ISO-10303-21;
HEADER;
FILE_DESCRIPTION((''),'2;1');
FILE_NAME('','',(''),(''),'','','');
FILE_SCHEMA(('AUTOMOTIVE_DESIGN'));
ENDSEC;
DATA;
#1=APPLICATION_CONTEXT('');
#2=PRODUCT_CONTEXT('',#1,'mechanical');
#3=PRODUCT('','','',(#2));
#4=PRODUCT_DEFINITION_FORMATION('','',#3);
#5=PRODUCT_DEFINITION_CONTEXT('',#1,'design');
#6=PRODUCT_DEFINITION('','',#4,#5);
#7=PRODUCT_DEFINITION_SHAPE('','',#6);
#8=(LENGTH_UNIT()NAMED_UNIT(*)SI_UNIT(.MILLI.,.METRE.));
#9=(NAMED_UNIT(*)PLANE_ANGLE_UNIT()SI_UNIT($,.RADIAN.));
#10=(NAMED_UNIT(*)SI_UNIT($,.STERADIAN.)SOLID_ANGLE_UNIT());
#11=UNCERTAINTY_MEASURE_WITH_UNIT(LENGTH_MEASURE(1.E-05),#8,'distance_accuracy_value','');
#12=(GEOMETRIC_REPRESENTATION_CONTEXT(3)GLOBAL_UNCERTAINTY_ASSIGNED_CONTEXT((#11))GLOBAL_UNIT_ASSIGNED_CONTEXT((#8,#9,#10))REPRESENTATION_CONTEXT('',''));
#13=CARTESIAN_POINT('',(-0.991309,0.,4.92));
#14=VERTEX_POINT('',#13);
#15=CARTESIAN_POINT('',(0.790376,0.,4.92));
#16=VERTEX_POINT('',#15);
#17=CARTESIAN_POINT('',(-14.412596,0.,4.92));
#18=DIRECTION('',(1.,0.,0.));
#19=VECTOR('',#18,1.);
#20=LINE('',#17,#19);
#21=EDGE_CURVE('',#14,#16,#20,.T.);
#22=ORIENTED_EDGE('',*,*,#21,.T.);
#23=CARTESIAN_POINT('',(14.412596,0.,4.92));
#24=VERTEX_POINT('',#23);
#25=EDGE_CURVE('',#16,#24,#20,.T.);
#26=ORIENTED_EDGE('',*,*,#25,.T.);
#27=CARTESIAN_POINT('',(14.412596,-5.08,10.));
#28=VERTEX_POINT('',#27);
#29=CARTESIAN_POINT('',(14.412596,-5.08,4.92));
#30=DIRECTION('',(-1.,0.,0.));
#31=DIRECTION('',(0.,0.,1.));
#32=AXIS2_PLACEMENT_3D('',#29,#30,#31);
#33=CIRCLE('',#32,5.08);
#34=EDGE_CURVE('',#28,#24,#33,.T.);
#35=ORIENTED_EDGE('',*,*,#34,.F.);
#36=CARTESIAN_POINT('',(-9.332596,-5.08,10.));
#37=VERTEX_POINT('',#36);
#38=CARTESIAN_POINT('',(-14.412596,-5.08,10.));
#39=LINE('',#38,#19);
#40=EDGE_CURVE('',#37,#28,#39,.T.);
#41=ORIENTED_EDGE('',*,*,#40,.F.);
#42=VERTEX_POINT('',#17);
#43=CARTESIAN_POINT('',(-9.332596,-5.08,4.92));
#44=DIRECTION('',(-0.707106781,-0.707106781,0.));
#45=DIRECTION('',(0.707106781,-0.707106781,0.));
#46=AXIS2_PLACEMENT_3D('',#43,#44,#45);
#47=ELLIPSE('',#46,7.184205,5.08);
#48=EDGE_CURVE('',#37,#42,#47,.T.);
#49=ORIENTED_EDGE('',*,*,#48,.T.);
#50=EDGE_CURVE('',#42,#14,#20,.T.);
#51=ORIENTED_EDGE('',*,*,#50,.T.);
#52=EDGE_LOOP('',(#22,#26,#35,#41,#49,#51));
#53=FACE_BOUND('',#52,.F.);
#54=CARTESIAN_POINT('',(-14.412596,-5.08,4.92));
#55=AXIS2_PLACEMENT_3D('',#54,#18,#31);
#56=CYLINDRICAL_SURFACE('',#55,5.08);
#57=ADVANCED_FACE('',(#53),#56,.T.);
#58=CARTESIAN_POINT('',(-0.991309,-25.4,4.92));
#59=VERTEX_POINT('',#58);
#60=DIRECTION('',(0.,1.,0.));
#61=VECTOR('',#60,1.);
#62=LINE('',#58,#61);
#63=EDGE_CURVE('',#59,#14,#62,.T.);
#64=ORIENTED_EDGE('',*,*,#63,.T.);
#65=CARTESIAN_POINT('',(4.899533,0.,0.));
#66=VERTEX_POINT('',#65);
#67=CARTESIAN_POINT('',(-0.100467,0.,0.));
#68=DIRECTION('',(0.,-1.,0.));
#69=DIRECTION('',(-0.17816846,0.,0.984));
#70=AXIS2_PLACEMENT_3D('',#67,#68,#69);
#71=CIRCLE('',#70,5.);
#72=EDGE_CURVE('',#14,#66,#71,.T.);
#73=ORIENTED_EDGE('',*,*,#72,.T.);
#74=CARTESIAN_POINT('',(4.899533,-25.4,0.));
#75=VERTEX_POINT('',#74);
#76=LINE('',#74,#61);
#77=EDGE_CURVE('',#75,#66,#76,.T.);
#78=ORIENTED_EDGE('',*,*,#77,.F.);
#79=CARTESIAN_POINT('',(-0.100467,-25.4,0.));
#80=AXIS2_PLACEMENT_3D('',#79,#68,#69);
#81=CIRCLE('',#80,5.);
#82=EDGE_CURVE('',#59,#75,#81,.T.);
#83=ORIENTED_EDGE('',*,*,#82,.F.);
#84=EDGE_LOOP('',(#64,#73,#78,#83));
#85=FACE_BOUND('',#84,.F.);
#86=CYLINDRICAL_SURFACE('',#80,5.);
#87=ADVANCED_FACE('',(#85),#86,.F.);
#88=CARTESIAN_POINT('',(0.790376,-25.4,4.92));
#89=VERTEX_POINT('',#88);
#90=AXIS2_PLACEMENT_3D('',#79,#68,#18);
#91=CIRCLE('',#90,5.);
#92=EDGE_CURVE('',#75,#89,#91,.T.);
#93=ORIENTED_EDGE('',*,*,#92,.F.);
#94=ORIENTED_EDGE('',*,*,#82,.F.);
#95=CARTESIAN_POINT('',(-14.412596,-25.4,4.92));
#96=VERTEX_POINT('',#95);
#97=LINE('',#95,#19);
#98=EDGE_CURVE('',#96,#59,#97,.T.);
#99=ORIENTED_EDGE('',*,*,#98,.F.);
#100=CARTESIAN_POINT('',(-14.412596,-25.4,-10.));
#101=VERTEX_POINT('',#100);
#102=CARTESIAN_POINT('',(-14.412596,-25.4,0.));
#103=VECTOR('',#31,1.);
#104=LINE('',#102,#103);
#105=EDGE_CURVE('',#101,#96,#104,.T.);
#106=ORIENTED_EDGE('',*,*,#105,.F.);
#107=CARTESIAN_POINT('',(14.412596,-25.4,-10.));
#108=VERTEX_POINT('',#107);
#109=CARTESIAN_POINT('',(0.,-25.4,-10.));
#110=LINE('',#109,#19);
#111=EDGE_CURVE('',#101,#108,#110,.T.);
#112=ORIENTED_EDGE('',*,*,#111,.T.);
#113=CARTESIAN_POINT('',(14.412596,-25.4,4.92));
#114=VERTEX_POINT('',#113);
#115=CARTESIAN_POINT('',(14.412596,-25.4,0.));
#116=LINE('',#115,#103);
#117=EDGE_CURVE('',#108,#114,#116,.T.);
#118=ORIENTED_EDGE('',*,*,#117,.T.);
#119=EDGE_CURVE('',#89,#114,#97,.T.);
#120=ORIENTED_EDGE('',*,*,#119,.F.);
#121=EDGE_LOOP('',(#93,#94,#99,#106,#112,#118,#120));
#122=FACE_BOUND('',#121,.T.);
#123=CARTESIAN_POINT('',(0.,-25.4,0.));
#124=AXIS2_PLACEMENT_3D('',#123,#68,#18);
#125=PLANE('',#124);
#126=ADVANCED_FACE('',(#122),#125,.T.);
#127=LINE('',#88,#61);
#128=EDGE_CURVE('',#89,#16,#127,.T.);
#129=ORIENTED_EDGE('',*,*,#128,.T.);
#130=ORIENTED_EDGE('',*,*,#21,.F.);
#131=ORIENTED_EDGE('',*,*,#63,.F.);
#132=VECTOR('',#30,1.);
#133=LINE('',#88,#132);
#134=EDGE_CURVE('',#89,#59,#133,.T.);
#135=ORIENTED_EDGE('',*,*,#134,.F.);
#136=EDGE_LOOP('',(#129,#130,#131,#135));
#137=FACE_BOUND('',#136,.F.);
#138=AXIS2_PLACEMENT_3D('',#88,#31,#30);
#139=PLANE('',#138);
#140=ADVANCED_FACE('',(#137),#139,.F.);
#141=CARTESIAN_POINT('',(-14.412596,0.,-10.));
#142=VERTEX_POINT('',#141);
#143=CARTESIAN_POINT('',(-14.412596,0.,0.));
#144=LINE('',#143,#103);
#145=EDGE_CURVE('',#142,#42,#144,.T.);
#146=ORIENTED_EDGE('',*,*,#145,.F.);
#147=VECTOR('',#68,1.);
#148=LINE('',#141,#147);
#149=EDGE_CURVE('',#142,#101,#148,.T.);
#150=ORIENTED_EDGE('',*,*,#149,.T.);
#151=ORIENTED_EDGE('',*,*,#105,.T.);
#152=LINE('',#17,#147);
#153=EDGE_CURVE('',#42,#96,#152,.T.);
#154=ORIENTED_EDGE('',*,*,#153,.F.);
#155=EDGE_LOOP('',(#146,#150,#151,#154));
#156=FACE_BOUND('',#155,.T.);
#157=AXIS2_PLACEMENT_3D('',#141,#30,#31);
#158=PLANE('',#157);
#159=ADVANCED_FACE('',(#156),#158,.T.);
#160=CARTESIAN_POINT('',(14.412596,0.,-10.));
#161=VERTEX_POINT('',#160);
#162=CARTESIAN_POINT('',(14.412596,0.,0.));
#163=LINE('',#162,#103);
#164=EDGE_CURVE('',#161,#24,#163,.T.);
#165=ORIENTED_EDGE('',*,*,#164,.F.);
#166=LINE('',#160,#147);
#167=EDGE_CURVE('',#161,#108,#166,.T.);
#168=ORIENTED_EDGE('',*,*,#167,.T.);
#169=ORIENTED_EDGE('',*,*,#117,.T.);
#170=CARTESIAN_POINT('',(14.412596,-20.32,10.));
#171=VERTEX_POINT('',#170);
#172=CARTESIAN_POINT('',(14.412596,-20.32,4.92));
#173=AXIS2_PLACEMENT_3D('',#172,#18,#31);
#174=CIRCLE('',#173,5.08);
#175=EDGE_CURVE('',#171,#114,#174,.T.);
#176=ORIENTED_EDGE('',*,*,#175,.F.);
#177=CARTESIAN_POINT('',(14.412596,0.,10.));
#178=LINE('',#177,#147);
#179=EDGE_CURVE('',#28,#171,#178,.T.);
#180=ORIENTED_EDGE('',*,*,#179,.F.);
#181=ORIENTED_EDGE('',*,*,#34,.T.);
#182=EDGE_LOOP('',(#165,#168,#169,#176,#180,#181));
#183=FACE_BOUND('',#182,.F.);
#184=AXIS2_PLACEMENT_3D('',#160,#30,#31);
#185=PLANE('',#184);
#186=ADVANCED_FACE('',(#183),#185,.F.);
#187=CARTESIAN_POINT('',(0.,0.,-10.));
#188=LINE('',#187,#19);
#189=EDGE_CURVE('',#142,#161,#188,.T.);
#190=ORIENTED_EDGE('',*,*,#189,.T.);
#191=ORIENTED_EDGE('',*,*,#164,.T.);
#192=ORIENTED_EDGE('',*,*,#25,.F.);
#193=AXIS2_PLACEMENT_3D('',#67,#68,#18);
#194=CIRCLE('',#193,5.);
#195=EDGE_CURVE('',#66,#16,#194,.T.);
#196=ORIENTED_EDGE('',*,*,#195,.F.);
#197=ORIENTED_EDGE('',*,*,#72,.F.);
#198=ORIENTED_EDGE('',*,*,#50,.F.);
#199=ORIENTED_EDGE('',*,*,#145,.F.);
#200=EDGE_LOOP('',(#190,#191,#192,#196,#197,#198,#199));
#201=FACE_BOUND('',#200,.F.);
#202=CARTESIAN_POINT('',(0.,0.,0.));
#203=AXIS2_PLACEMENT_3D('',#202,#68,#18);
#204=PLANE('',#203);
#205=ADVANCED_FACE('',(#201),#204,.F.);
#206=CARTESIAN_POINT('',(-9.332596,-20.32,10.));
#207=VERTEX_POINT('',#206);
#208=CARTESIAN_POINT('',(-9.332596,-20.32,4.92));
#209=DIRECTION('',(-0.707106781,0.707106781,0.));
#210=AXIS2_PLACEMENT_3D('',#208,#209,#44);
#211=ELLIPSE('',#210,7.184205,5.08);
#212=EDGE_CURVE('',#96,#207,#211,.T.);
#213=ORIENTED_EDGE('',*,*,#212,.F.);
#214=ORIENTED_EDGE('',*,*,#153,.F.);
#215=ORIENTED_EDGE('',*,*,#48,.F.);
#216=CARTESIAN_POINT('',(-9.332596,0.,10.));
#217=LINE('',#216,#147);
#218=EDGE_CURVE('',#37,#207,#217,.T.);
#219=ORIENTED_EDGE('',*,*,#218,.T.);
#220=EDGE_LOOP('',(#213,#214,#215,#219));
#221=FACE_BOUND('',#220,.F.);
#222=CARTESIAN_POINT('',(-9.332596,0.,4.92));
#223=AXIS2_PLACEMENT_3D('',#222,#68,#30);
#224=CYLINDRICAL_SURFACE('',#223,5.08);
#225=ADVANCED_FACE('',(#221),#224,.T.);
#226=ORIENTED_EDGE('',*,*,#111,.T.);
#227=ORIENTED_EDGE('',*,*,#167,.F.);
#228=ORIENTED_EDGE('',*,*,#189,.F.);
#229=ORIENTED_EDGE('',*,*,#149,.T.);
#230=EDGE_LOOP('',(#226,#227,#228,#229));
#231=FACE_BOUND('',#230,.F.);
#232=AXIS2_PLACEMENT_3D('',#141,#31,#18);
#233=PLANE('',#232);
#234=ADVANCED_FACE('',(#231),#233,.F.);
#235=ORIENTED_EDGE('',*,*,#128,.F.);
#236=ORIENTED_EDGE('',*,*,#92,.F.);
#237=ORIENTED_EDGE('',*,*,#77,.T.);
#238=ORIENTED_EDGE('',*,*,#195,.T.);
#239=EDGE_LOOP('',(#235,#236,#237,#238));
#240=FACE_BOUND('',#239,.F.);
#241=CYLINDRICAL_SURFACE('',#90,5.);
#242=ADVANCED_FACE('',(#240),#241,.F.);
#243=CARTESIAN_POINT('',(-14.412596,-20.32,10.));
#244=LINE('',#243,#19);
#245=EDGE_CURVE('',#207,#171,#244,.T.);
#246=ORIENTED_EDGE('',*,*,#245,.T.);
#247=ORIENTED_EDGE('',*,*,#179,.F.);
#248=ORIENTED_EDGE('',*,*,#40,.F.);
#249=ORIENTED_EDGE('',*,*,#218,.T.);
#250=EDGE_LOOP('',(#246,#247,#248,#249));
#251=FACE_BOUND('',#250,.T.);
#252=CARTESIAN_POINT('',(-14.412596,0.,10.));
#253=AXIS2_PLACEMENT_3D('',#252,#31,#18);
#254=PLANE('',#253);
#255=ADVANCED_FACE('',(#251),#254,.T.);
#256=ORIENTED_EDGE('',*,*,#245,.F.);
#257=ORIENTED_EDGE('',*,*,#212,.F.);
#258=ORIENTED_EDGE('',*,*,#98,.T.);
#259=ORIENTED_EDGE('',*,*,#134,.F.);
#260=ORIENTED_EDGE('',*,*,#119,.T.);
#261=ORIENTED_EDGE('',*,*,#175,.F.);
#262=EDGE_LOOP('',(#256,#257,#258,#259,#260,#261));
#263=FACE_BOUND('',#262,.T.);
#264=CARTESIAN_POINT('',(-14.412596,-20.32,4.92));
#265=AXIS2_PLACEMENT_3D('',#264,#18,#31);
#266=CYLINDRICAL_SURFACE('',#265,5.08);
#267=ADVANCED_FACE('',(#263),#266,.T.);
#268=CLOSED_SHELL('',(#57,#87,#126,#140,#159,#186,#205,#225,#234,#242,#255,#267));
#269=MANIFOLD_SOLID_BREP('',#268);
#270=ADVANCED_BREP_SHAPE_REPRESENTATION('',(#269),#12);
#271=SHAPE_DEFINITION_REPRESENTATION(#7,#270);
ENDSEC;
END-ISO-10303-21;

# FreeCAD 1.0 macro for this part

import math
import FreeCAD as App
import Part
import Sketcher
Q = App.Units.Quantity


def edges_at(feature, points):
    """Names of the edges that pass closest to the given points."""
    edges = feature.Shape.Edges
    near = lambda p: min(range(len(edges)), key=lambda i: edges[i].distToShape(Part.Vertex(*p))[0])
    return sorted({f"Edge{near(p) + 1}" for p in points})


def add_polygon(sketch, points):
    """Adds a closed chain of lines whose ends are joined by coincident constraints."""
    first, n = sketch.GeometryCount, len(points)
    for a, b in zip(points, points[1:] + points[:1]):
        sketch.addGeometry(Part.LineSegment(App.Vector(*a, 0), App.Vector(*b, 0)), False)
    for i in range(n):
        sketch.addConstraint(Sketcher.Constraint("Coincident", first + i, 2, first + (i + 1) % n, 1))

doc = App.newDocument("Part")
params = doc.addObject("Spreadsheet::Sheet", "Params")
for row, (alias, value) in enumerate([
    ("sketch1_height", "20 mm"),
    ("pad1_length", "25.4 mm"),
    ("fillet_radius", "5.08 mm"),
    ("sketch2_radius", "5 mm"),
], start=1):
    params.set(f"A{row}", alias)
    params.set(f"B{row}", "=" + value)
    params.setAlias(f"B{row}", alias)

body = doc.addObject("PartDesign::Body", "Body")

sketch1 = body.newObject("Sketcher::SketchObject", "Sketch")
sketch1.AttachmentSupport = (doc.getObject("XZ_Plane"), [""])
sketch1.MapMode = "FlatFace"
add_polygon(sketch1, [(-14, 10), (-14, -10), (14, -10), (14, 10)])
sketch1.addConstraint(Sketcher.Constraint("Vertical", 0))
sketch1.addConstraint(Sketcher.Constraint("Horizontal", 1))
sketch1.addConstraint(Sketcher.Constraint("Vertical", 2))
sketch1.addConstraint(Sketcher.Constraint("Horizontal", 3))
sketch1.addConstraint(Sketcher.Constraint("Symmetric", 0, 2, 2, 2, -1, 1))
sketch1.addConstraint(Sketcher.Constraint("DistanceY", 0, 2, 0, 1, Q("20 mm")))
sketch1.addConstraint(Sketcher.Constraint("DistanceX", 1, 1, 1, 2, Q("28.825192 mm")))
sketch1.setExpression("Constraints[9]", "Params.sketch1_height")
pad1 = body.newObject("PartDesign::Pad", "Pad")
pad1.Profile = sketch1
pad1.setExpression("Length", "Params.pad1_length")
doc.recompute()

fillet = body.newObject("PartDesign::Fillet", "Fillet")
fillet.Base = (pad1, edges_at(pad1, [(0, 0, 10), (-14.413, -12.7, 10), (0, -25.4, 10)]))
fillet.setExpression("Radius", "Params.fillet_radius")

sketch2 = body.newObject("Sketcher::SketchObject", "Sketch001")
sketch2.AttachmentSupport = (doc.getObject("XZ_Plane"), [""])
sketch2.MapMode = "FlatFace"
sketch2.AttachmentOffset = App.Placement(App.Vector(0, 0, 25.4), App.Rotation())
sketch2.addGeometry(Part.ArcOfCircle(Part.Circle(App.Vector(-0.1, 0, 0), App.Vector(0, 0, 1), 5), math.radians(100), math.radians(360)), False)
sketch2.addGeometry(Part.ArcOfCircle(Part.Circle(App.Vector(-0.1, 0, 0), App.Vector(0, 0, 1), 5), math.radians(0), math.radians(80)), False)
sketch2.addGeometry(Part.LineSegment(App.Vector(0.8, 4.9, 0), App.Vector(-1, 4.9, 0)), False)
sketch2.addConstraint(Sketcher.Constraint("Tangent", 0, 2, 1, 1))
sketch2.addConstraint(Sketcher.Constraint("Coincident", 1, 2, 2, 1))
sketch2.addConstraint(Sketcher.Constraint("Coincident", 2, 2, 0, 1))
sketch2.addConstraint(Sketcher.Constraint("Horizontal", 2))
sketch2.addConstraint(Sketcher.Constraint("Equal", 0, 1))
sketch2.addConstraint(Sketcher.Constraint("PointOnObject", 0, 3, -1))
sketch2.addConstraint(Sketcher.Constraint("PointOnObject", 0, 2, -1))
sketch2.addConstraint(Sketcher.Constraint("Radius", 0, Q("5 mm")))
sketch2.addConstraint(Sketcher.Constraint("DistanceY", -1, 1, 1, 2, Q("4.92 mm")))
sketch2.addConstraint(Sketcher.Constraint("DistanceX", 2, 2, -1, 1, Q("0.991309 mm")))
sketch2.setExpression("Constraints[7]", "Params.sketch2_radius")
pocket1 = body.newObject("PartDesign::Pocket", "Pocket")
pocket1.Profile = sketch2
pocket1.Type = "ThroughAll"

doc.recompute()
